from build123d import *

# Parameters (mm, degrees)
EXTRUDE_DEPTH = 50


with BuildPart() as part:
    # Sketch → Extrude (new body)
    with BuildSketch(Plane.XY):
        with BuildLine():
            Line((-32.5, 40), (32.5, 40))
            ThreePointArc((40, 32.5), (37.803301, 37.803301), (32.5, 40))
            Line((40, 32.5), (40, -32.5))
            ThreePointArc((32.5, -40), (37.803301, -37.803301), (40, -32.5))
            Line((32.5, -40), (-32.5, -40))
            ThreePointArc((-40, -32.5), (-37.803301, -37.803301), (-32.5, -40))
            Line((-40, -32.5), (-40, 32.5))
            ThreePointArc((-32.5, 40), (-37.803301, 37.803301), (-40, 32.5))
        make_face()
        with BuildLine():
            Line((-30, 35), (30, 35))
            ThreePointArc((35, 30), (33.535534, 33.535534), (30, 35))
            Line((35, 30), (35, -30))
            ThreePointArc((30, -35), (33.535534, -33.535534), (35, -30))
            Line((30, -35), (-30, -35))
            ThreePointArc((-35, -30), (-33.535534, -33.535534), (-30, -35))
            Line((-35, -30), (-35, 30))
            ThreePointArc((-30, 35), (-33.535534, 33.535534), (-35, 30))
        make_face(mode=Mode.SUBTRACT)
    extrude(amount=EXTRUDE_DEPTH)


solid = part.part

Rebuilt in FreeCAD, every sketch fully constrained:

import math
import FreeCAD as App
import Part
import Sketcher
from FreeCAD import Vector

doc = App.newDocument("Part")
body = doc.addObject("PartDesign::Body", "Body")

# Sketch on XY plane
sketch1 = body.newObject("Sketcher::SketchObject", "Sketch")
sketch1.AttachmentSupport = (doc.getObject("XY_Plane"), [""])
sketch1.MapMode = "FlatFace"
sketch1.addGeometry(Part.LineSegment(Vector(32.5, 40, 0), Vector(-32.5, 40, 0)), False)
sketch1.addGeometry(Part.ArcOfCircle(Part.Circle(Vector(-32.5, 32.5, 0), Vector(0, 0, 1), 7.5), math.radians(90), math.radians(180)), False)
sketch1.addGeometry(Part.LineSegment(Vector(-40, 32.5, 0), Vector(-40, -32.5, 0)), False)
sketch1.addGeometry(Part.ArcOfCircle(Part.Circle(Vector(-32.5, -32.5, 0), Vector(0, 0, 1), 7.5), math.radians(180), math.radians(270)), False)
sketch1.addGeometry(Part.LineSegment(Vector(-32.5, -40, 0), Vector(32.5, -40, 0)), False)
sketch1.addGeometry(Part.ArcOfCircle(Part.Circle(Vector(32.5, -32.5, 0), Vector(0, 0, 1), 7.5), math.radians(-90), math.radians(0)), False)
sketch1.addGeometry(Part.LineSegment(Vector(40, -32.5, 0), Vector(40, 32.5, 0)), False)
sketch1.addGeometry(Part.ArcOfCircle(Part.Circle(Vector(32.5, 32.5, 0), Vector(0, 0, 1), 7.5), math.radians(0), math.radians(90)), False)
sketch1.addGeometry(Part.LineSegment(Vector(-30, 35, 0), Vector(30, 35, 0)), False)
sketch1.addGeometry(Part.ArcOfCircle(Part.Circle(Vector(30, 30, 0), Vector(0, 0, 1), 5), math.radians(0), math.radians(90)), False)
sketch1.addGeometry(Part.LineSegment(Vector(35, 30, 0), Vector(35, -30, 0)), False)
sketch1.addGeometry(Part.ArcOfCircle(Part.Circle(Vector(30, -30, 0), Vector(0, 0, 1), 5), math.radians(-90), math.radians(0)), False)
sketch1.addGeometry(Part.LineSegment(Vector(30, -35, 0), Vector(-30, -35, 0)), False)
sketch1.addGeometry(Part.ArcOfCircle(Part.Circle(Vector(-30, -30, 0), Vector(0, 0, 1), 5), math.radians(180), math.radians(270)), False)
sketch1.addGeometry(Part.LineSegment(Vector(-35, -30, 0), Vector(-35, 30, 0)), False)
sketch1.addGeometry(Part.ArcOfCircle(Part.Circle(Vector(-30, 30, 0), Vector(0, 0, 1), 5), math.radians(90), math.radians(180)), False)
sketch1.addConstraint(Sketcher.Constraint("Tangent", 0, 2, 1, 1))
sketch1.addConstraint(Sketcher.Constraint("Tangent", 1, 2, 2, 1))
sketch1.addConstraint(Sketcher.Constraint("Tangent", 2, 2, 3, 1))
sketch1.addConstraint(Sketcher.Constraint("Tangent", 3, 2, 4, 1))
sketch1.addConstraint(Sketcher.Constraint("Tangent", 4, 2, 5, 1))
sketch1.addConstraint(Sketcher.Constraint("Tangent", 5, 2, 6, 1))
sketch1.addConstraint(Sketcher.Constraint("Tangent", 6, 2, 7, 1))
sketch1.addConstraint(Sketcher.Constraint("Tangent", 7, 2, 0, 1))
sketch1.addConstraint(Sketcher.Constraint("Tangent", 8, 2, 9, 2))
sketch1.addConstraint(Sketcher.Constraint("Tangent", 9, 1, 10, 1))
sketch1.addConstraint(Sketcher.Constraint("Tangent", 10, 2, 11, 2))
sketch1.addConstraint(Sketcher.Constraint("Tangent", 11, 1, 12, 1))
sketch1.addConstraint(Sketcher.Constraint("Tangent", 12, 2, 13, 2))
sketch1.addConstraint(Sketcher.Constraint("Tangent", 13, 1, 14, 1))
sketch1.addConstraint(Sketcher.Constraint("Tangent", 14, 2, 15, 2))
sketch1.addConstraint(Sketcher.Constraint("Tangent", 15, 1, 8, 1))
sketch1.addConstraint(Sketcher.Constraint("Horizontal", 0))
sketch1.addConstraint(Sketcher.Constraint("Vertical", 2))
sketch1.addConstraint(Sketcher.Constraint("Horizontal", 4))
sketch1.addConstraint(Sketcher.Constraint("Vertical", 6))
sketch1.addConstraint(Sketcher.Constraint("Horizontal", 8))
sketch1.addConstraint(Sketcher.Constraint("Vertical", 10))
sketch1.addConstraint(Sketcher.Constraint("Horizontal", 12))
sketch1.addConstraint(Sketcher.Constraint("Vertical", 14))
sketch1.addConstraint(Sketcher.Constraint("Equal", 1, 3))
sketch1.addConstraint(Sketcher.Constraint("Equal", 3, 5))
sketch1.addConstraint(Sketcher.Constraint("Equal", 5, 7))
sketch1.addConstraint(Sketcher.Constraint("Equal", 9, 11))
sketch1.addConstraint(Sketcher.Constraint("Equal", 11, 13))
sketch1.addConstraint(Sketcher.Constraint("Equal", 13, 15))
sketch1.addConstraint(Sketcher.Constraint("Symmetric", 1, 3, 5, 3, -1, 1))
sketch1.addConstraint(Sketcher.Constraint("Symmetric", 9, 3, 13, 3, -1, 1))
sketch1.addConstraint(Sketcher.Constraint("Equal", 4, 2))
sketch1.addConstraint(Sketcher.Constraint("Equal", 12, 10))
sketch1.addConstraint(Sketcher.Constraint("Radius", 9, 5.0))
sketch1.addConstraint(Sketcher.Constraint("Radius", 1, 7.5))
sketch1.addConstraint(Sketcher.Constraint("DistanceX", 0, 2, 0, 1, 65.0))
sketch1.addConstraint(Sketcher.Constraint("DistanceX", 8, 1, 8, 2, 60.0))
pad1 = body.newObject("PartDesign::Pad", "Pad")
pad1.Profile = sketch1
pad1.Length = 50

doc.recompute()
